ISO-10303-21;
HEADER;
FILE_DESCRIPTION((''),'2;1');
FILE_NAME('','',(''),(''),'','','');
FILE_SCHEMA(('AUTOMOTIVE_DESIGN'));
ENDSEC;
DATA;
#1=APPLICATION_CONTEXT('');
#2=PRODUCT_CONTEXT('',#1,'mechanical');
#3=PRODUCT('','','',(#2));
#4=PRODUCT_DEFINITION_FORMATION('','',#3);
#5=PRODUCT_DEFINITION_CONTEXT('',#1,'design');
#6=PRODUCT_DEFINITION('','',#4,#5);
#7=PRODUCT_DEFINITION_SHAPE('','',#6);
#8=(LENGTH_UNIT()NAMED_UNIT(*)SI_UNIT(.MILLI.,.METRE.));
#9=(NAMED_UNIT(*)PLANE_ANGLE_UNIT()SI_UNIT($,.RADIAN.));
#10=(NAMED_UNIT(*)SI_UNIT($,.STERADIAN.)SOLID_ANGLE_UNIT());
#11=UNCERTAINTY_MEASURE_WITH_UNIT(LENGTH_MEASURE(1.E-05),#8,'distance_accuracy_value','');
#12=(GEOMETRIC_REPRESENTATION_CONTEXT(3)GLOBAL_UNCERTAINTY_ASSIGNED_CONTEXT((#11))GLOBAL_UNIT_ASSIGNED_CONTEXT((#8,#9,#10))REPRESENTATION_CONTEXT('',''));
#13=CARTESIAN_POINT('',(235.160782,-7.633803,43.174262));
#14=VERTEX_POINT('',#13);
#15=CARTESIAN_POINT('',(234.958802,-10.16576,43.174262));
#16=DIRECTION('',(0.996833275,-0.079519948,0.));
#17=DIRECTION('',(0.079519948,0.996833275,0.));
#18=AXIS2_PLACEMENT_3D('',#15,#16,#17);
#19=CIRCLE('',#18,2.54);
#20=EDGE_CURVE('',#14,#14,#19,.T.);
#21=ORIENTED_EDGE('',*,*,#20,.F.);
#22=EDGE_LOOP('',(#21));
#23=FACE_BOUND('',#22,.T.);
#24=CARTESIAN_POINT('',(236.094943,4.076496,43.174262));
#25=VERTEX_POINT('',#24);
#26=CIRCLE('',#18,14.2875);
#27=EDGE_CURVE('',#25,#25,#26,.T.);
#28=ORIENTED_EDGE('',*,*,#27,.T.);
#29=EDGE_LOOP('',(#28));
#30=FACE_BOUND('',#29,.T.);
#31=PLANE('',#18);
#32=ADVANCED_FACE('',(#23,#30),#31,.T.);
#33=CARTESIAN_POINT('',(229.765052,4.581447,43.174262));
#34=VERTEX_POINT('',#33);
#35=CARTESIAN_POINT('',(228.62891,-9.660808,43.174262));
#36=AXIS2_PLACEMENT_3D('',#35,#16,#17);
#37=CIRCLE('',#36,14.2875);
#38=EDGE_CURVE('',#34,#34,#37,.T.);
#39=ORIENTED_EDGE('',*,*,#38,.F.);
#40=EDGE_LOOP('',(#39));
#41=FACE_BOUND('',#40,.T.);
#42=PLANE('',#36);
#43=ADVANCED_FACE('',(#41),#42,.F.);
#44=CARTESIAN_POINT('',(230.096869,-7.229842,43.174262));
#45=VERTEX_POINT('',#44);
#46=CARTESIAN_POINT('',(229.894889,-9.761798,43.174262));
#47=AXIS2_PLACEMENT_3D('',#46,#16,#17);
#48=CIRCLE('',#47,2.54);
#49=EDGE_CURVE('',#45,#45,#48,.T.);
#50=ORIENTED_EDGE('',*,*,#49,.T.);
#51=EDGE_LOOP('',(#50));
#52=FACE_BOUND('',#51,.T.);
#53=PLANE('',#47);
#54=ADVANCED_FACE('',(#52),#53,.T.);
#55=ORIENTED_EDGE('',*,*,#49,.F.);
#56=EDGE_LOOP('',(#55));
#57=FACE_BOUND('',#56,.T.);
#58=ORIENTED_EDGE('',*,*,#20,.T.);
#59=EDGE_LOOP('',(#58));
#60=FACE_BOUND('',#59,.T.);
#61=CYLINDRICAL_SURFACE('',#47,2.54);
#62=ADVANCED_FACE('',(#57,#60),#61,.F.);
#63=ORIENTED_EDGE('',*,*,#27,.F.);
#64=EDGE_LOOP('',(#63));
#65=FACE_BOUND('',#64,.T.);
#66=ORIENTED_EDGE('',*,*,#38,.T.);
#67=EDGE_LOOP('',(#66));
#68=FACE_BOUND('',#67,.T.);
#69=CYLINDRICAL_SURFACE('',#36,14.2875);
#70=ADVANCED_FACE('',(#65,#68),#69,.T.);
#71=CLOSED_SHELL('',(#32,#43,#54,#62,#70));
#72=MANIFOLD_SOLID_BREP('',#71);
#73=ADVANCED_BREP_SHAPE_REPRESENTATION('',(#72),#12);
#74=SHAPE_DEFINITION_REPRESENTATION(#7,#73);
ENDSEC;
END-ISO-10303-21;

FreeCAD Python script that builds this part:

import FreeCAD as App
import Part
import Sketcher

V = App.Vector
Q = App.Units.Quantity

doc = App.newDocument("Part")
body = doc.addObject("PartDesign::Body", "Body")

sketch1 = body.newObject("Sketcher::SketchObject", "Sketch")
sketch1.Placement = App.Placement(V(234.278879, -18.689027, 0), App.Rotation(V(0, 0, -1), V(0.079519948, 0.996833275, 0), V(0.996833275, -0.079519948, 0), "ZXY"))
sketch1.addGeometry(Part.Circle(V(-43, 9, 0), V(0, 0, 1), 14), False)
sketch1.addConstraint(Sketcher.Constraint("Diameter", 0, Q("1.125 in")))
sketch1.addConstraint(Sketcher.Constraint("DistanceX", 0, 3, -1, 1, Q("43.174262 mm")))
sketch1.addConstraint(Sketcher.Constraint("DistanceY", -1, 1, 0, 3, Q("8.550344 mm")))
pad1 = body.newObject("PartDesign::Pad", "Pad")
pad1.Profile = sketch1
pad1.Length = Q("0.25 in")
pad1.Reversed = True

sketch2 = body.newObject("Sketcher::SketchObject", "Sketch001")
sketch2.Placement = App.Placement(V(234.278879, -18.689027, 0), App.Rotation(V(0, 0, -1), V(0.079519948, 0.996833275, 0), V(0.996833275, -0.079519948, 0), "ZXY"))
sketch2.addGeometry(Part.Circle(V(-43.2, 8.6, 0), V(0, 0, 1), 2.5), False)
sketch2.addConstraint(Sketcher.Constraint("Diameter", 0, Q("0.2 in")))
sketch2.addConstraint(Sketcher.Constraint("DistanceX", 0, 3, -1, 1, Q("43.174262 mm")))
sketch2.addConstraint(Sketcher.Constraint("DistanceY", -1, 1, 0, 3, Q("8.550344 mm")))
pocket1 = body.newObject("PartDesign::Pocket", "Pocket")
pocket1.Profile = sketch2
pocket1.Length = Q("0.2 in")

doc.recompute()
